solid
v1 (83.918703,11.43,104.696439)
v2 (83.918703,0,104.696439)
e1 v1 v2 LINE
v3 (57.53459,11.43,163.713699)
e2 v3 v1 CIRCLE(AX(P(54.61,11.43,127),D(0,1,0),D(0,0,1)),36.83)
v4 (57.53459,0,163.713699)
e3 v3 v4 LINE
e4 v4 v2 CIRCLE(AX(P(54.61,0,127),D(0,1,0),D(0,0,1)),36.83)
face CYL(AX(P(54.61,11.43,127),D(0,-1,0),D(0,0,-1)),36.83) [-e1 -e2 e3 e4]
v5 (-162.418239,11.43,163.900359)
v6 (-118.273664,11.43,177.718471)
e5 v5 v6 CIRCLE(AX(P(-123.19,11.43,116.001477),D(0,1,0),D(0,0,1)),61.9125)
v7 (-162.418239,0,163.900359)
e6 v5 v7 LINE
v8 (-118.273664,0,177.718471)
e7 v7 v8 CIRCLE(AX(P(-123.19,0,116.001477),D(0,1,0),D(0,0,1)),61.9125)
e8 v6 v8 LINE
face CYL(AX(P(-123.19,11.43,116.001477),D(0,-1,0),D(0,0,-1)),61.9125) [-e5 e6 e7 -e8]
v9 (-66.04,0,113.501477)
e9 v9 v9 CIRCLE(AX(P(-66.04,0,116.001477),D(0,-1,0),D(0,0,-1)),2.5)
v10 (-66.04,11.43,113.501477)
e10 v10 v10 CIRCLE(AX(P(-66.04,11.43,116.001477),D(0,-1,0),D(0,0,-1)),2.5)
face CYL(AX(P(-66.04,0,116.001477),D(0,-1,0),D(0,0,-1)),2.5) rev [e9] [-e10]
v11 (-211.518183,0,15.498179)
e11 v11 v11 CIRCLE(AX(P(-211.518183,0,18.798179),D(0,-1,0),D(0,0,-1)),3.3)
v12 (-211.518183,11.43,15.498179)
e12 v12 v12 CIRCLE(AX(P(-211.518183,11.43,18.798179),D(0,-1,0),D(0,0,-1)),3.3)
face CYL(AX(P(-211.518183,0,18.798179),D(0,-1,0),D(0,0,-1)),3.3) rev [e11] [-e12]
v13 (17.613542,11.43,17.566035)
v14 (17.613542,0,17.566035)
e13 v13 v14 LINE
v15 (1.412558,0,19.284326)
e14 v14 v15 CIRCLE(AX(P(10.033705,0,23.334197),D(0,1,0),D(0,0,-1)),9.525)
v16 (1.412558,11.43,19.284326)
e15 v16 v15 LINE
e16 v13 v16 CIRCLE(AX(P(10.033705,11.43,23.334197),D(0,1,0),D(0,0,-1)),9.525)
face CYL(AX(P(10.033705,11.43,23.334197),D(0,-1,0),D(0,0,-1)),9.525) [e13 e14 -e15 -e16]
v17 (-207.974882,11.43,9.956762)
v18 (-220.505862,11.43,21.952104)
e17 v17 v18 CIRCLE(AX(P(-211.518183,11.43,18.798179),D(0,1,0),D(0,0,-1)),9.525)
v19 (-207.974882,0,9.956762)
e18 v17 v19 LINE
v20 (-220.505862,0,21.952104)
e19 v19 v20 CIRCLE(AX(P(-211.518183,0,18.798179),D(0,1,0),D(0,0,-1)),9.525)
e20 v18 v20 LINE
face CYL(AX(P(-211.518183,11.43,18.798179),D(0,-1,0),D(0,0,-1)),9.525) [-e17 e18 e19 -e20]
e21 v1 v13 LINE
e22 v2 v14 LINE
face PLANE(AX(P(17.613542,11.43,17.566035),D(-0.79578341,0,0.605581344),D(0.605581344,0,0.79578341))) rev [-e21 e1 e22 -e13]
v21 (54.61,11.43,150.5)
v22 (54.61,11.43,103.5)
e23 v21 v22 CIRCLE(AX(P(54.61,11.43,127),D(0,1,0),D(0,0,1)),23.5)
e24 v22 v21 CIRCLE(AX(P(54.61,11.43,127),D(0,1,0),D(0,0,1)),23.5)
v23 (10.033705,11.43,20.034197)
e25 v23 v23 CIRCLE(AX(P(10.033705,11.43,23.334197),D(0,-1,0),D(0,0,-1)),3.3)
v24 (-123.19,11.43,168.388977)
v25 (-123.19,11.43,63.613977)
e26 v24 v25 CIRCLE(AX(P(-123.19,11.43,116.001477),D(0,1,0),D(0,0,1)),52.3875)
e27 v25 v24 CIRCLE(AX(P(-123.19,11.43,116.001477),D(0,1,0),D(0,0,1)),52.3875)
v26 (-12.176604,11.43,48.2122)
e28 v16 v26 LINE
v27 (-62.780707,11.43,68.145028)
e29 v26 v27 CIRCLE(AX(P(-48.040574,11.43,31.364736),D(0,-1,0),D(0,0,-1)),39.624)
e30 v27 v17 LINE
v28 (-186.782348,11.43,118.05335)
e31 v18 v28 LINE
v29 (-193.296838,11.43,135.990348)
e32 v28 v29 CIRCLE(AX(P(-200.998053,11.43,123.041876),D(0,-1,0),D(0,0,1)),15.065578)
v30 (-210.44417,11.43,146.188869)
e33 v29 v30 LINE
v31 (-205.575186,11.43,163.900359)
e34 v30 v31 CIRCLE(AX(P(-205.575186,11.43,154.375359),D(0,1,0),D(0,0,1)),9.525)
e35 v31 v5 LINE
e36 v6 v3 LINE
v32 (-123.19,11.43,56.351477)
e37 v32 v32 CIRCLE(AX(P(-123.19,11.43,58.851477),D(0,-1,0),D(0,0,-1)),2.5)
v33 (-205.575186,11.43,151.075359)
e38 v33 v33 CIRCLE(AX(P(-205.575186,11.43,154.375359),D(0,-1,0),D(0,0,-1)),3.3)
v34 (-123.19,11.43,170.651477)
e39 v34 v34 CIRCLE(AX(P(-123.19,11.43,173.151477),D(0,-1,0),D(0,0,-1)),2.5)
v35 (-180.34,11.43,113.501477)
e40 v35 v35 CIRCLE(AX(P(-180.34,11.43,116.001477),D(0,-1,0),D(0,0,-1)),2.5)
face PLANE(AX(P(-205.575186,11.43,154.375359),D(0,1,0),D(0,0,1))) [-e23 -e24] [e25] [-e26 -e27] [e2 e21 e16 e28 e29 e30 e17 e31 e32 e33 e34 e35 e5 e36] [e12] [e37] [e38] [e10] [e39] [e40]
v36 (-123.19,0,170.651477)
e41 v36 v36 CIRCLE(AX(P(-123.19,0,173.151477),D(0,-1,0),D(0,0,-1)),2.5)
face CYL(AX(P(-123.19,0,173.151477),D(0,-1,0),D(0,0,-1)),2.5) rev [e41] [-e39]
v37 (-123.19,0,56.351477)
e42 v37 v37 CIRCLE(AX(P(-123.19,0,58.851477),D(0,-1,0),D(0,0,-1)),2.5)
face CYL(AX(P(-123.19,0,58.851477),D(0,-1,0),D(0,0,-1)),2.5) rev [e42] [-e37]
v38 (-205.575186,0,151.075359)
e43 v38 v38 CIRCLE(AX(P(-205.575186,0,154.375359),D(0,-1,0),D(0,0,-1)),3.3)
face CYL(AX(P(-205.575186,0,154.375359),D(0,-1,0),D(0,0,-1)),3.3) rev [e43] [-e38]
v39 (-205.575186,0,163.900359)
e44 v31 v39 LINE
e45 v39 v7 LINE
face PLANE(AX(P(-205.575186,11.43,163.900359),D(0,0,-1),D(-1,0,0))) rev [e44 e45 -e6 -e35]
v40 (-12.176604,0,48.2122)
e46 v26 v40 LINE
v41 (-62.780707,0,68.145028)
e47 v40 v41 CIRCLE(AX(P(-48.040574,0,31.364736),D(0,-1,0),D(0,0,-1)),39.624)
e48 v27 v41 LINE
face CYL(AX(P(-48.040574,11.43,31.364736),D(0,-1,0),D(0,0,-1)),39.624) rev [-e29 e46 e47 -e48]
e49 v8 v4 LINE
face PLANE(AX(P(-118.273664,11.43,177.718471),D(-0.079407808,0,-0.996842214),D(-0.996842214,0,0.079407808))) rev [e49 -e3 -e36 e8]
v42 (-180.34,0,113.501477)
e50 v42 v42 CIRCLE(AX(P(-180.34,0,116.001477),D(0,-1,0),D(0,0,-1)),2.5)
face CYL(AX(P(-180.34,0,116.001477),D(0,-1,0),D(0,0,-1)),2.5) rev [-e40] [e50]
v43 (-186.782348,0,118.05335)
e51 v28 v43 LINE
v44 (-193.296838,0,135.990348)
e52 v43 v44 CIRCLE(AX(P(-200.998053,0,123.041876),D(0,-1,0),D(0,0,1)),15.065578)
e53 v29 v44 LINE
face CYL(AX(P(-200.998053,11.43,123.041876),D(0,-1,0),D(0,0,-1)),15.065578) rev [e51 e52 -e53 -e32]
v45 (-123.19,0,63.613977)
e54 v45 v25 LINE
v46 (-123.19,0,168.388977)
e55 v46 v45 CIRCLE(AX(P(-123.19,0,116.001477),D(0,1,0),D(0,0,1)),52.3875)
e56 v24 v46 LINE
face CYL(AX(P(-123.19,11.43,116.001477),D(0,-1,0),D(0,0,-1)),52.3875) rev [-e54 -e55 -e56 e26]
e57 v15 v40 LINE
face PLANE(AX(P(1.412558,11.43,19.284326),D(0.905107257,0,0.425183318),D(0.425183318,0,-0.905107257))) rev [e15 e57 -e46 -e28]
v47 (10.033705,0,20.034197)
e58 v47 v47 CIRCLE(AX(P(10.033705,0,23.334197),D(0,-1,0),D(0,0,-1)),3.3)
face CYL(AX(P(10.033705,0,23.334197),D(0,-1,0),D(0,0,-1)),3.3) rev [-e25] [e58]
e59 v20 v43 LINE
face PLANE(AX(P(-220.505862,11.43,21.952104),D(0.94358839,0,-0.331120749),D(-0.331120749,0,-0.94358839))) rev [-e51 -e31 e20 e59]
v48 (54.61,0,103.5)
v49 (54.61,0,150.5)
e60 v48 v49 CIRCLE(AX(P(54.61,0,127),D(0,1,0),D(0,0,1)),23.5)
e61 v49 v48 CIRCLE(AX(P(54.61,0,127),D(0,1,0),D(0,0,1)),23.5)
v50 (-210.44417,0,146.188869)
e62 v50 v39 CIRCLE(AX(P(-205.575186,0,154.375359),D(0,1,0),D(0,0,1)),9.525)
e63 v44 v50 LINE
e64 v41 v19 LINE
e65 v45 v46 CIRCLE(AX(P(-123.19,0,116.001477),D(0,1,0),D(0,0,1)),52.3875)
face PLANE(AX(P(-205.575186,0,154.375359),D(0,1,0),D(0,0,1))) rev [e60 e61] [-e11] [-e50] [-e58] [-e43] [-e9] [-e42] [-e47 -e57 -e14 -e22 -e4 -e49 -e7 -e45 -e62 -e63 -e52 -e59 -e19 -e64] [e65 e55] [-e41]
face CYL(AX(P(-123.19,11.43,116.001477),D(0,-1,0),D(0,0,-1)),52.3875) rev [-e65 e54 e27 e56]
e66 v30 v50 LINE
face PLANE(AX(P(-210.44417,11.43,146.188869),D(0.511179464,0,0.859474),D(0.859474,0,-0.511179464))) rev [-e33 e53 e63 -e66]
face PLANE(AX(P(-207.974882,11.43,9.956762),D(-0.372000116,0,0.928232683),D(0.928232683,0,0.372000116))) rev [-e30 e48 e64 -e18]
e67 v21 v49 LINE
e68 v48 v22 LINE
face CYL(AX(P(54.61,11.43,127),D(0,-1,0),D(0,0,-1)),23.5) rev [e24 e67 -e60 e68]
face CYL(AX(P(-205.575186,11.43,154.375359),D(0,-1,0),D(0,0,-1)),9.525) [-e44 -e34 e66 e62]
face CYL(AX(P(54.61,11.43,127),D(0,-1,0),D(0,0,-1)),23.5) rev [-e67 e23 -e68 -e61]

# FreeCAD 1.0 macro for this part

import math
import FreeCAD as App
import Part
import Sketcher

V = App.Vector
Q = App.Units.Quantity

doc = App.newDocument("Part")
body = doc.addObject("PartDesign::Body", "Body")

# Sketch on XZ plane
sketch1 = body.newObject("Sketcher::SketchObject", "Sketch")
sketch1.AttachmentSupport = (doc.getObject("XZ_Plane"), [""])
sketch1.MapMode = "FlatFace"
sketch1.addGeometry([
    Part.LineSegment(V(-205.575186, 163.900359, 0), V(-162.418239, 163.900359, 0)),  # 0
    Part.ArcOfCircle(Part.Circle(V(-123.19, 116.001477, 0), V(0, 0, 1), 61.9125), math.radians(85.445473), math.radians(129.3168)),  # 1
    Part.LineSegment(V(-118.273664, 177.718471, 0), V(57.53459, 163.713699, 0)),  # 2
    Part.ArcOfCircle(Part.Circle(V(54.61, 127, 0), V(0, 0, 1), 36.83), math.radians(-37.270687), math.radians(85.445473)),  # 3
    Part.LineSegment(V(83.918703, 104.696439, 0), V(17.613542, 17.566035, 0)),  # 4
    Part.ArcOfCircle(Part.Circle(V(10.033705, 23.334197, 0), V(0, 0, 1), 9.525), math.radians(-154.837733), math.radians(-37.270687)),  # 5
    Part.LineSegment(V(1.412558, 19.284326, 0), V(-12.176604, 48.2122, 0)),  # 6
    Part.ArcOfCircle(Part.Circle(V(-48.040574, 31.364736, 0), V(0, 0, 1), 39.624), math.radians(25.162267), math.radians(111.839023)),  # 7
    Part.LineSegment(V(-62.780707, 68.145028, 0), V(-207.974882, 9.956762, 0)),  # 8
    Part.ArcOfCircle(Part.Circle(V(-211.518183, 18.798179, 0), V(0, 0, 1), 9.525), math.radians(160.663185), math.radians(291.839023)),  # 9
    Part.LineSegment(V(-220.505862, 21.952104, 0), V(-186.782348, 118.05335, 0)),  # 10
    Part.ArcOfCircle(Part.Circle(V(-200.998053, 123.041876, 0), V(0, 0, 1), 15.065578), math.radians(-19.336815), math.radians(59.257575)),  # 11
    Part.LineSegment(V(-193.296838, 135.990348, 0), V(-210.44417, 146.188869, 0)),  # 12
    Part.ArcOfCircle(Part.Circle(V(-205.575186, 154.375359, 0), V(0, 0, 1), 9.525), math.radians(90), math.radians(239.257575)),  # 13
    Part.Circle(V(54.61, 127, 0), V(0, 0, 1), 23.5),  # 14
    Part.Circle(V(-123.19, 116.001477, 0), V(0, 0, 1), 52.3875),  # 15
], False)
sketch1.addConstraint([
    Sketcher.Constraint("Coincident", 0, 2, 1, 2),
    Sketcher.Constraint("Coincident", 1, 1, 2, 1),
    Sketcher.Constraint("Coincident", 2, 2, 3, 2),
    Sketcher.Constraint("Coincident", 3, 1, 4, 1),
    Sketcher.Constraint("Coincident", 4, 2, 5, 2),
    Sketcher.Constraint("Coincident", 5, 1, 6, 1),
    Sketcher.Constraint("Coincident", 6, 2, 7, 1),
    Sketcher.Constraint("Coincident", 7, 2, 8, 1),
    Sketcher.Constraint("Coincident", 8, 2, 9, 2),
    Sketcher.Constraint("Coincident", 9, 1, 10, 1),
    Sketcher.Constraint("Coincident", 10, 2, 11, 1),
    Sketcher.Constraint("Coincident", 11, 2, 12, 1),
    Sketcher.Constraint("Coincident", 12, 2, 13, 2),
    Sketcher.Constraint("Coincident", 13, 1, 0, 1),
    Sketcher.Constraint("Horizontal", 0),
    Sketcher.Constraint("Coincident", 14, 3, 3, 3),
    Sketcher.Constraint("Coincident", 15, 3, 1, 3),
    Sketcher.Constraint("Radius", 3, Q("1.45 in")),
    Sketcher.Constraint("Radius", 7, Q("1.56 in")),
    Sketcher.Constraint("Diameter", 15, Q("4.125 in")),
    Sketcher.Constraint("DistanceY", -1, 1, 3, 3, Q("5 in")),
    Sketcher.Constraint("Radius", 1, Q("2.4375 in")),
    Sketcher.Constraint("Radius", 5, Q("0.375 in")),
    Sketcher.Constraint("Radius", 9, Q("0.375 in")),
    Sketcher.Constraint("Radius", 13, Q("0.375 in")),
    Sketcher.Constraint("DistanceX", 1, 3, 3, 3, Q("7 in")),
    Sketcher.Constraint("Diameter", 14, Q("47 mm")),
    Sketcher.Constraint("DistanceX", 1, 3, -1, 1, Q("4.85 in")),
    Sketcher.Constraint("Radius", 11, Q("15.065578 mm")),
    Sketcher.Constraint("DistanceX", 9, 3, 8, 2, Q("0.1395 in")),
    Sketcher.Constraint("Distance", 4, Q("109.490099 mm")),
    Sketcher.Constraint("DistanceY", -1, 1, 2, 2, Q("163.713699 mm")),
    Sketcher.Constraint("DistanceY", -1, 1, 6, 2, Q("48.2122 mm")),
    Sketcher.Constraint("DistanceY", 9, 3, 1, 3, Q("97.203299 mm")),
    Sketcher.Constraint("DistanceY", 1, 3, 11, 3, Q("7.040398 mm")),
    Sketcher.Constraint("DistanceY", 5, 3, 2, 2, Q("140.379501 mm")),
    Sketcher.Constraint("DistanceX", 5, 3, 3, 1, Q("73.884998 mm")),
    Sketcher.Constraint("DistanceY", 4, 2, 7, 3, Q("13.798701 mm")),
    Sketcher.Constraint("DistanceY", 5, 1, 7, 2, Q("48.860702 mm")),
    Sketcher.Constraint("DistanceY", 10, 2, 11, 2, Q("17.936998 mm")),
    Sketcher.Constraint("DistanceX", 11, 2, 0, 2, Q("30.878599 mm")),
    Sketcher.Constraint("Distance", 8, Q("156.42002 mm")),
    Sketcher.Constraint("Distance", 12, Q("19.95096 mm")),
    Sketcher.Constraint("DistanceX", 0, 1, 0, 2, Q("43.156946 mm")),
    Sketcher.Constraint("DistanceY", -1, 1, 9, 3, Q("18.798179 mm")),
    Sketcher.Constraint("DistanceY", -1, 1, 13, 3, Q("154.375359 mm")),
    Sketcher.Constraint("DistanceY", -1, 1, 1, 1, Q("177.718471 mm")),
    Sketcher.Constraint("DistanceY", -1, 1, 3, 1, Q("104.696439 mm")),
    Sketcher.Constraint("DistanceX", -1, 1, 5, 1, Q("1.412558 mm")),
    Sketcher.Constraint("DistanceX", 8, 2, -1, 1, Q("207.974882 mm")),
    Sketcher.Constraint("DistanceY", -1, 1, 10, 2, Q("118.05335 mm")),
    Sketcher.Constraint("DistanceX", 12, 2, -1, 1, Q("210.44417 mm")),
    Sketcher.Constraint("DistanceX", 9, 1, 9, 3, Q("8.987679 mm")),
])
pad1 = body.newObject("PartDesign::Pad", "Pad")
pad1.Profile = sketch1
pad1.Length = Q("0.45 in")
pad1.Reversed = True

# Sketch on XZ plane
sketch2 = body.newObject("Sketcher::SketchObject", "Sketch001")
sketch2.AttachmentSupport = (doc.getObject("XZ_Plane"), [""])
sketch2.MapMode = "FlatFace"
sketch2.addGeometry([
    Part.Circle(V(10.033705, 23.334197, 0), V(0, 0, 1), 3.3),
    Part.Circle(V(-211.518183, 18.798179, 0), V(0, 0, 1), 3.3),
    Part.Circle(V(-205.575186, 154.375359, 0), V(0, 0, 1), 3.3),
], False)
sketch2.addConstraint([
    Sketcher.Constraint("Equal", 0, 1),
    Sketcher.Constraint("Equal", 1, 2),
    Sketcher.Constraint("Diameter", 0, Q("6.6 mm")),
    Sketcher.Constraint("DistanceY", -1, 1, 1, 3, Q("18.798179 mm")),
    Sketcher.Constraint("DistanceY", -1, 1, 2, 3, Q("154.375359 mm")),
    Sketcher.Constraint("DistanceY", 1, 3, 0, 3, Q("4.536019 mm")),
    Sketcher.Constraint("DistanceX", 2, 3, 0, 3, Q("215.60889 mm")),
    Sketcher.Constraint("DistanceX", -1, 1, 0, 3, Q("10.033705 mm")),
    Sketcher.Constraint("DistanceX", 1, 3, -1, 1, Q("211.518183 mm")),
])
doc.recompute()
hole = body.newObject("PartDesign::Hole", "Hole")
hole.Profile = sketch2
hole.ThreadType = "None"
hole.Diameter = 6.6
hole.DepthType = "ThroughAll"

# Sketch on XZ plane
sketch3 = body.newObject("Sketcher::SketchObject", "Sketch002")
sketch3.AttachmentSupport = (doc.getObject("XZ_Plane"), [""])
sketch3.MapMode = "FlatFace"
sketch3.addGeometry(Part.Circle(V(-123.19, 173.151477, 0), V(0, 0, 1), 2.5), False)
sketch3.addConstraint([
    Sketcher.Constraint("Diameter", 0, Q("5 mm")),
    Sketcher.Constraint("DistanceX", 0, 3, -1, 1, Q("4.85 in")),
    Sketcher.Constraint("DistanceY", -1, 1, 0, 3, Q("173.151477 mm")),
])
doc.recompute()
hole2 = body.newObject("PartDesign::Hole", "Hole001")
hole2.Profile = sketch3
hole2.ThreadType = "None"
hole2.Diameter = 5
hole2.DepthType = "ThroughAll"
doc.recompute()

datumline = body.newObject("PartDesign::Line", "DatumLine")
datumline.Placement = App.Placement(V(-123.19, 0, 116.001477), App.Rotation(V(0, 0, 1), V(0, 1, 0)))
polarpattern = body.newObject("PartDesign::PolarPattern", "PolarPattern")
polarpattern.Originals = [hole2]
polarpattern.Axis = (datumline, [""])
polarpattern.Angle = 360
polarpattern.Occurrences = 4
body.Tip = polarpattern

doc.recompute()
